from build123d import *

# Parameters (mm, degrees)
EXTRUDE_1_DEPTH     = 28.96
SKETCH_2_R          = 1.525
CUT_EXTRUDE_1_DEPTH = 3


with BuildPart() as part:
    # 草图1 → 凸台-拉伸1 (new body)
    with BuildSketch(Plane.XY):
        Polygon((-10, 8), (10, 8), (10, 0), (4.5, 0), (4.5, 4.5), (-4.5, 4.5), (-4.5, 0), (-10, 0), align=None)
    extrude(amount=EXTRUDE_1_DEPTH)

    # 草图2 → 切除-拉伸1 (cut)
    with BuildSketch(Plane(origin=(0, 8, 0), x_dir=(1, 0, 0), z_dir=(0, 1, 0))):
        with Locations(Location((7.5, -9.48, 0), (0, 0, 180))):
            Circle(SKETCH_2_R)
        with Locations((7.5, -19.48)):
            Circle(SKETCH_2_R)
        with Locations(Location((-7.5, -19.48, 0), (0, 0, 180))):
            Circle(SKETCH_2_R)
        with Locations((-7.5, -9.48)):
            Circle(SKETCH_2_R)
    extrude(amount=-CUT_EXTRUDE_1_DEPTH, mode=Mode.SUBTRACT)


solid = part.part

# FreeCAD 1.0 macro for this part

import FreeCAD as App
import Part
import Sketcher
Q = App.Units.Quantity


def add_polygon(sketch, points):
    """Adds a closed chain of lines whose ends are joined by coincident constraints."""
    first, n = sketch.GeometryCount, len(points)
    for a, b in zip(points, points[1:] + points[:1]):
        sketch.addGeometry(Part.LineSegment(App.Vector(*a, 0), App.Vector(*b, 0)), False)
    for i in range(n):
        sketch.addConstraint(Sketcher.Constraint("Coincident", first + i, 2, first + (i + 1) % n, 1))

doc = App.newDocument("Part")
body = doc.addObject("PartDesign::Body", "Body")

# Sketch on XY plane
sketch1 = body.newObject("Sketcher::SketchObject", "Sketch")
sketch1.AttachmentSupport = (doc.getObject("XY_Plane"), [""])
sketch1.MapMode = "FlatFace"
add_polygon(sketch1, [(10, 8), (-10, 8), (-10, 0), (-4.5, 0), (-4.5, 4.5), (4.5, 4.5), (4.5, 0), (10, 0)])  # lines 0-7
sketch1.addConstraint([
    Sketcher.Constraint("Horizontal", 0),
    Sketcher.Constraint("Vertical", 1),
    Sketcher.Constraint("Horizontal", 2),
    Sketcher.Constraint("Vertical", 3),
    Sketcher.Constraint("Horizontal", 4),
    Sketcher.Constraint("Vertical", 5),
    Sketcher.Constraint("Horizontal", 6),
    Sketcher.Constraint("Vertical", 7),
    Sketcher.Constraint("Symmetric", 2, 2, 5, 2, -1, 1),
    Sketcher.Constraint("Symmetric", 1, 2, 6, 2, -2),
    Sketcher.Constraint("DistanceX", 0, 2, 0, 1, Q("20 mm")),
    Sketcher.Constraint("DistanceX", 4, 1, 4, 2, Q("9 mm")),
    Sketcher.Constraint("DistanceY", 1, 2, 1, 1, Q("8 mm")),
    Sketcher.Constraint("DistanceY", 3, 1, 3, 2, Q("4.5 mm")),
])
pad1 = body.newObject("PartDesign::Pad", "Pad")
pad1.Profile = sketch1
pad1.Length = 28.96

# Sketch on XZ plane
sketch2 = body.newObject("Sketcher::SketchObject", "Sketch001")
sketch2.AttachmentSupport = (doc.getObject("XZ_Plane"), [""])
sketch2.MapMode = "FlatFace"
sketch2.AttachmentOffset = App.Placement(App.Vector(0, 0, -8), App.Rotation())
sketch2.addGeometry([
    Part.Circle(App.Vector(7.5, 9.5, 0), App.Vector(0, 0, 1), 1.5),
    Part.Circle(App.Vector(7.5, 19.5, 0), App.Vector(0, 0, 1), 1.5),
    Part.Circle(App.Vector(-7.5, 19.5, 0), App.Vector(0, 0, 1), 1.5),
    Part.Circle(App.Vector(-7.5, 9.5, 0), App.Vector(0, 0, 1), 1.5),
], False)
sketch2.addConstraint([
    Sketcher.Constraint("Equal", 0, 1),
    Sketcher.Constraint("Equal", 1, 2),
    Sketcher.Constraint("Equal", 2, 3),
    Sketcher.Constraint("Symmetric", 1, 3, 2, 3, -2),
    Sketcher.Constraint("Symmetric", 0, 3, 3, 3, -2),
    Sketcher.Constraint("Vertical", 0, 3, 1, 3),
    Sketcher.Constraint("Diameter", 0, Q("3.05 mm")),
    Sketcher.Constraint("DistanceY", 0, 3, 1, 3, Q("10 mm")),
    Sketcher.Constraint("DistanceX", 2, 3, 1, 3, Q("15 mm")),
    Sketcher.Constraint("DistanceY", -1, 1, 0, 3, Q("9.48 mm")),
])
pocket1 = body.newObject("PartDesign::Pocket", "Pocket")
pocket1.Profile = sketch2
pocket1.Length = 3
pocket1.Reversed = True

doc.recompute()
